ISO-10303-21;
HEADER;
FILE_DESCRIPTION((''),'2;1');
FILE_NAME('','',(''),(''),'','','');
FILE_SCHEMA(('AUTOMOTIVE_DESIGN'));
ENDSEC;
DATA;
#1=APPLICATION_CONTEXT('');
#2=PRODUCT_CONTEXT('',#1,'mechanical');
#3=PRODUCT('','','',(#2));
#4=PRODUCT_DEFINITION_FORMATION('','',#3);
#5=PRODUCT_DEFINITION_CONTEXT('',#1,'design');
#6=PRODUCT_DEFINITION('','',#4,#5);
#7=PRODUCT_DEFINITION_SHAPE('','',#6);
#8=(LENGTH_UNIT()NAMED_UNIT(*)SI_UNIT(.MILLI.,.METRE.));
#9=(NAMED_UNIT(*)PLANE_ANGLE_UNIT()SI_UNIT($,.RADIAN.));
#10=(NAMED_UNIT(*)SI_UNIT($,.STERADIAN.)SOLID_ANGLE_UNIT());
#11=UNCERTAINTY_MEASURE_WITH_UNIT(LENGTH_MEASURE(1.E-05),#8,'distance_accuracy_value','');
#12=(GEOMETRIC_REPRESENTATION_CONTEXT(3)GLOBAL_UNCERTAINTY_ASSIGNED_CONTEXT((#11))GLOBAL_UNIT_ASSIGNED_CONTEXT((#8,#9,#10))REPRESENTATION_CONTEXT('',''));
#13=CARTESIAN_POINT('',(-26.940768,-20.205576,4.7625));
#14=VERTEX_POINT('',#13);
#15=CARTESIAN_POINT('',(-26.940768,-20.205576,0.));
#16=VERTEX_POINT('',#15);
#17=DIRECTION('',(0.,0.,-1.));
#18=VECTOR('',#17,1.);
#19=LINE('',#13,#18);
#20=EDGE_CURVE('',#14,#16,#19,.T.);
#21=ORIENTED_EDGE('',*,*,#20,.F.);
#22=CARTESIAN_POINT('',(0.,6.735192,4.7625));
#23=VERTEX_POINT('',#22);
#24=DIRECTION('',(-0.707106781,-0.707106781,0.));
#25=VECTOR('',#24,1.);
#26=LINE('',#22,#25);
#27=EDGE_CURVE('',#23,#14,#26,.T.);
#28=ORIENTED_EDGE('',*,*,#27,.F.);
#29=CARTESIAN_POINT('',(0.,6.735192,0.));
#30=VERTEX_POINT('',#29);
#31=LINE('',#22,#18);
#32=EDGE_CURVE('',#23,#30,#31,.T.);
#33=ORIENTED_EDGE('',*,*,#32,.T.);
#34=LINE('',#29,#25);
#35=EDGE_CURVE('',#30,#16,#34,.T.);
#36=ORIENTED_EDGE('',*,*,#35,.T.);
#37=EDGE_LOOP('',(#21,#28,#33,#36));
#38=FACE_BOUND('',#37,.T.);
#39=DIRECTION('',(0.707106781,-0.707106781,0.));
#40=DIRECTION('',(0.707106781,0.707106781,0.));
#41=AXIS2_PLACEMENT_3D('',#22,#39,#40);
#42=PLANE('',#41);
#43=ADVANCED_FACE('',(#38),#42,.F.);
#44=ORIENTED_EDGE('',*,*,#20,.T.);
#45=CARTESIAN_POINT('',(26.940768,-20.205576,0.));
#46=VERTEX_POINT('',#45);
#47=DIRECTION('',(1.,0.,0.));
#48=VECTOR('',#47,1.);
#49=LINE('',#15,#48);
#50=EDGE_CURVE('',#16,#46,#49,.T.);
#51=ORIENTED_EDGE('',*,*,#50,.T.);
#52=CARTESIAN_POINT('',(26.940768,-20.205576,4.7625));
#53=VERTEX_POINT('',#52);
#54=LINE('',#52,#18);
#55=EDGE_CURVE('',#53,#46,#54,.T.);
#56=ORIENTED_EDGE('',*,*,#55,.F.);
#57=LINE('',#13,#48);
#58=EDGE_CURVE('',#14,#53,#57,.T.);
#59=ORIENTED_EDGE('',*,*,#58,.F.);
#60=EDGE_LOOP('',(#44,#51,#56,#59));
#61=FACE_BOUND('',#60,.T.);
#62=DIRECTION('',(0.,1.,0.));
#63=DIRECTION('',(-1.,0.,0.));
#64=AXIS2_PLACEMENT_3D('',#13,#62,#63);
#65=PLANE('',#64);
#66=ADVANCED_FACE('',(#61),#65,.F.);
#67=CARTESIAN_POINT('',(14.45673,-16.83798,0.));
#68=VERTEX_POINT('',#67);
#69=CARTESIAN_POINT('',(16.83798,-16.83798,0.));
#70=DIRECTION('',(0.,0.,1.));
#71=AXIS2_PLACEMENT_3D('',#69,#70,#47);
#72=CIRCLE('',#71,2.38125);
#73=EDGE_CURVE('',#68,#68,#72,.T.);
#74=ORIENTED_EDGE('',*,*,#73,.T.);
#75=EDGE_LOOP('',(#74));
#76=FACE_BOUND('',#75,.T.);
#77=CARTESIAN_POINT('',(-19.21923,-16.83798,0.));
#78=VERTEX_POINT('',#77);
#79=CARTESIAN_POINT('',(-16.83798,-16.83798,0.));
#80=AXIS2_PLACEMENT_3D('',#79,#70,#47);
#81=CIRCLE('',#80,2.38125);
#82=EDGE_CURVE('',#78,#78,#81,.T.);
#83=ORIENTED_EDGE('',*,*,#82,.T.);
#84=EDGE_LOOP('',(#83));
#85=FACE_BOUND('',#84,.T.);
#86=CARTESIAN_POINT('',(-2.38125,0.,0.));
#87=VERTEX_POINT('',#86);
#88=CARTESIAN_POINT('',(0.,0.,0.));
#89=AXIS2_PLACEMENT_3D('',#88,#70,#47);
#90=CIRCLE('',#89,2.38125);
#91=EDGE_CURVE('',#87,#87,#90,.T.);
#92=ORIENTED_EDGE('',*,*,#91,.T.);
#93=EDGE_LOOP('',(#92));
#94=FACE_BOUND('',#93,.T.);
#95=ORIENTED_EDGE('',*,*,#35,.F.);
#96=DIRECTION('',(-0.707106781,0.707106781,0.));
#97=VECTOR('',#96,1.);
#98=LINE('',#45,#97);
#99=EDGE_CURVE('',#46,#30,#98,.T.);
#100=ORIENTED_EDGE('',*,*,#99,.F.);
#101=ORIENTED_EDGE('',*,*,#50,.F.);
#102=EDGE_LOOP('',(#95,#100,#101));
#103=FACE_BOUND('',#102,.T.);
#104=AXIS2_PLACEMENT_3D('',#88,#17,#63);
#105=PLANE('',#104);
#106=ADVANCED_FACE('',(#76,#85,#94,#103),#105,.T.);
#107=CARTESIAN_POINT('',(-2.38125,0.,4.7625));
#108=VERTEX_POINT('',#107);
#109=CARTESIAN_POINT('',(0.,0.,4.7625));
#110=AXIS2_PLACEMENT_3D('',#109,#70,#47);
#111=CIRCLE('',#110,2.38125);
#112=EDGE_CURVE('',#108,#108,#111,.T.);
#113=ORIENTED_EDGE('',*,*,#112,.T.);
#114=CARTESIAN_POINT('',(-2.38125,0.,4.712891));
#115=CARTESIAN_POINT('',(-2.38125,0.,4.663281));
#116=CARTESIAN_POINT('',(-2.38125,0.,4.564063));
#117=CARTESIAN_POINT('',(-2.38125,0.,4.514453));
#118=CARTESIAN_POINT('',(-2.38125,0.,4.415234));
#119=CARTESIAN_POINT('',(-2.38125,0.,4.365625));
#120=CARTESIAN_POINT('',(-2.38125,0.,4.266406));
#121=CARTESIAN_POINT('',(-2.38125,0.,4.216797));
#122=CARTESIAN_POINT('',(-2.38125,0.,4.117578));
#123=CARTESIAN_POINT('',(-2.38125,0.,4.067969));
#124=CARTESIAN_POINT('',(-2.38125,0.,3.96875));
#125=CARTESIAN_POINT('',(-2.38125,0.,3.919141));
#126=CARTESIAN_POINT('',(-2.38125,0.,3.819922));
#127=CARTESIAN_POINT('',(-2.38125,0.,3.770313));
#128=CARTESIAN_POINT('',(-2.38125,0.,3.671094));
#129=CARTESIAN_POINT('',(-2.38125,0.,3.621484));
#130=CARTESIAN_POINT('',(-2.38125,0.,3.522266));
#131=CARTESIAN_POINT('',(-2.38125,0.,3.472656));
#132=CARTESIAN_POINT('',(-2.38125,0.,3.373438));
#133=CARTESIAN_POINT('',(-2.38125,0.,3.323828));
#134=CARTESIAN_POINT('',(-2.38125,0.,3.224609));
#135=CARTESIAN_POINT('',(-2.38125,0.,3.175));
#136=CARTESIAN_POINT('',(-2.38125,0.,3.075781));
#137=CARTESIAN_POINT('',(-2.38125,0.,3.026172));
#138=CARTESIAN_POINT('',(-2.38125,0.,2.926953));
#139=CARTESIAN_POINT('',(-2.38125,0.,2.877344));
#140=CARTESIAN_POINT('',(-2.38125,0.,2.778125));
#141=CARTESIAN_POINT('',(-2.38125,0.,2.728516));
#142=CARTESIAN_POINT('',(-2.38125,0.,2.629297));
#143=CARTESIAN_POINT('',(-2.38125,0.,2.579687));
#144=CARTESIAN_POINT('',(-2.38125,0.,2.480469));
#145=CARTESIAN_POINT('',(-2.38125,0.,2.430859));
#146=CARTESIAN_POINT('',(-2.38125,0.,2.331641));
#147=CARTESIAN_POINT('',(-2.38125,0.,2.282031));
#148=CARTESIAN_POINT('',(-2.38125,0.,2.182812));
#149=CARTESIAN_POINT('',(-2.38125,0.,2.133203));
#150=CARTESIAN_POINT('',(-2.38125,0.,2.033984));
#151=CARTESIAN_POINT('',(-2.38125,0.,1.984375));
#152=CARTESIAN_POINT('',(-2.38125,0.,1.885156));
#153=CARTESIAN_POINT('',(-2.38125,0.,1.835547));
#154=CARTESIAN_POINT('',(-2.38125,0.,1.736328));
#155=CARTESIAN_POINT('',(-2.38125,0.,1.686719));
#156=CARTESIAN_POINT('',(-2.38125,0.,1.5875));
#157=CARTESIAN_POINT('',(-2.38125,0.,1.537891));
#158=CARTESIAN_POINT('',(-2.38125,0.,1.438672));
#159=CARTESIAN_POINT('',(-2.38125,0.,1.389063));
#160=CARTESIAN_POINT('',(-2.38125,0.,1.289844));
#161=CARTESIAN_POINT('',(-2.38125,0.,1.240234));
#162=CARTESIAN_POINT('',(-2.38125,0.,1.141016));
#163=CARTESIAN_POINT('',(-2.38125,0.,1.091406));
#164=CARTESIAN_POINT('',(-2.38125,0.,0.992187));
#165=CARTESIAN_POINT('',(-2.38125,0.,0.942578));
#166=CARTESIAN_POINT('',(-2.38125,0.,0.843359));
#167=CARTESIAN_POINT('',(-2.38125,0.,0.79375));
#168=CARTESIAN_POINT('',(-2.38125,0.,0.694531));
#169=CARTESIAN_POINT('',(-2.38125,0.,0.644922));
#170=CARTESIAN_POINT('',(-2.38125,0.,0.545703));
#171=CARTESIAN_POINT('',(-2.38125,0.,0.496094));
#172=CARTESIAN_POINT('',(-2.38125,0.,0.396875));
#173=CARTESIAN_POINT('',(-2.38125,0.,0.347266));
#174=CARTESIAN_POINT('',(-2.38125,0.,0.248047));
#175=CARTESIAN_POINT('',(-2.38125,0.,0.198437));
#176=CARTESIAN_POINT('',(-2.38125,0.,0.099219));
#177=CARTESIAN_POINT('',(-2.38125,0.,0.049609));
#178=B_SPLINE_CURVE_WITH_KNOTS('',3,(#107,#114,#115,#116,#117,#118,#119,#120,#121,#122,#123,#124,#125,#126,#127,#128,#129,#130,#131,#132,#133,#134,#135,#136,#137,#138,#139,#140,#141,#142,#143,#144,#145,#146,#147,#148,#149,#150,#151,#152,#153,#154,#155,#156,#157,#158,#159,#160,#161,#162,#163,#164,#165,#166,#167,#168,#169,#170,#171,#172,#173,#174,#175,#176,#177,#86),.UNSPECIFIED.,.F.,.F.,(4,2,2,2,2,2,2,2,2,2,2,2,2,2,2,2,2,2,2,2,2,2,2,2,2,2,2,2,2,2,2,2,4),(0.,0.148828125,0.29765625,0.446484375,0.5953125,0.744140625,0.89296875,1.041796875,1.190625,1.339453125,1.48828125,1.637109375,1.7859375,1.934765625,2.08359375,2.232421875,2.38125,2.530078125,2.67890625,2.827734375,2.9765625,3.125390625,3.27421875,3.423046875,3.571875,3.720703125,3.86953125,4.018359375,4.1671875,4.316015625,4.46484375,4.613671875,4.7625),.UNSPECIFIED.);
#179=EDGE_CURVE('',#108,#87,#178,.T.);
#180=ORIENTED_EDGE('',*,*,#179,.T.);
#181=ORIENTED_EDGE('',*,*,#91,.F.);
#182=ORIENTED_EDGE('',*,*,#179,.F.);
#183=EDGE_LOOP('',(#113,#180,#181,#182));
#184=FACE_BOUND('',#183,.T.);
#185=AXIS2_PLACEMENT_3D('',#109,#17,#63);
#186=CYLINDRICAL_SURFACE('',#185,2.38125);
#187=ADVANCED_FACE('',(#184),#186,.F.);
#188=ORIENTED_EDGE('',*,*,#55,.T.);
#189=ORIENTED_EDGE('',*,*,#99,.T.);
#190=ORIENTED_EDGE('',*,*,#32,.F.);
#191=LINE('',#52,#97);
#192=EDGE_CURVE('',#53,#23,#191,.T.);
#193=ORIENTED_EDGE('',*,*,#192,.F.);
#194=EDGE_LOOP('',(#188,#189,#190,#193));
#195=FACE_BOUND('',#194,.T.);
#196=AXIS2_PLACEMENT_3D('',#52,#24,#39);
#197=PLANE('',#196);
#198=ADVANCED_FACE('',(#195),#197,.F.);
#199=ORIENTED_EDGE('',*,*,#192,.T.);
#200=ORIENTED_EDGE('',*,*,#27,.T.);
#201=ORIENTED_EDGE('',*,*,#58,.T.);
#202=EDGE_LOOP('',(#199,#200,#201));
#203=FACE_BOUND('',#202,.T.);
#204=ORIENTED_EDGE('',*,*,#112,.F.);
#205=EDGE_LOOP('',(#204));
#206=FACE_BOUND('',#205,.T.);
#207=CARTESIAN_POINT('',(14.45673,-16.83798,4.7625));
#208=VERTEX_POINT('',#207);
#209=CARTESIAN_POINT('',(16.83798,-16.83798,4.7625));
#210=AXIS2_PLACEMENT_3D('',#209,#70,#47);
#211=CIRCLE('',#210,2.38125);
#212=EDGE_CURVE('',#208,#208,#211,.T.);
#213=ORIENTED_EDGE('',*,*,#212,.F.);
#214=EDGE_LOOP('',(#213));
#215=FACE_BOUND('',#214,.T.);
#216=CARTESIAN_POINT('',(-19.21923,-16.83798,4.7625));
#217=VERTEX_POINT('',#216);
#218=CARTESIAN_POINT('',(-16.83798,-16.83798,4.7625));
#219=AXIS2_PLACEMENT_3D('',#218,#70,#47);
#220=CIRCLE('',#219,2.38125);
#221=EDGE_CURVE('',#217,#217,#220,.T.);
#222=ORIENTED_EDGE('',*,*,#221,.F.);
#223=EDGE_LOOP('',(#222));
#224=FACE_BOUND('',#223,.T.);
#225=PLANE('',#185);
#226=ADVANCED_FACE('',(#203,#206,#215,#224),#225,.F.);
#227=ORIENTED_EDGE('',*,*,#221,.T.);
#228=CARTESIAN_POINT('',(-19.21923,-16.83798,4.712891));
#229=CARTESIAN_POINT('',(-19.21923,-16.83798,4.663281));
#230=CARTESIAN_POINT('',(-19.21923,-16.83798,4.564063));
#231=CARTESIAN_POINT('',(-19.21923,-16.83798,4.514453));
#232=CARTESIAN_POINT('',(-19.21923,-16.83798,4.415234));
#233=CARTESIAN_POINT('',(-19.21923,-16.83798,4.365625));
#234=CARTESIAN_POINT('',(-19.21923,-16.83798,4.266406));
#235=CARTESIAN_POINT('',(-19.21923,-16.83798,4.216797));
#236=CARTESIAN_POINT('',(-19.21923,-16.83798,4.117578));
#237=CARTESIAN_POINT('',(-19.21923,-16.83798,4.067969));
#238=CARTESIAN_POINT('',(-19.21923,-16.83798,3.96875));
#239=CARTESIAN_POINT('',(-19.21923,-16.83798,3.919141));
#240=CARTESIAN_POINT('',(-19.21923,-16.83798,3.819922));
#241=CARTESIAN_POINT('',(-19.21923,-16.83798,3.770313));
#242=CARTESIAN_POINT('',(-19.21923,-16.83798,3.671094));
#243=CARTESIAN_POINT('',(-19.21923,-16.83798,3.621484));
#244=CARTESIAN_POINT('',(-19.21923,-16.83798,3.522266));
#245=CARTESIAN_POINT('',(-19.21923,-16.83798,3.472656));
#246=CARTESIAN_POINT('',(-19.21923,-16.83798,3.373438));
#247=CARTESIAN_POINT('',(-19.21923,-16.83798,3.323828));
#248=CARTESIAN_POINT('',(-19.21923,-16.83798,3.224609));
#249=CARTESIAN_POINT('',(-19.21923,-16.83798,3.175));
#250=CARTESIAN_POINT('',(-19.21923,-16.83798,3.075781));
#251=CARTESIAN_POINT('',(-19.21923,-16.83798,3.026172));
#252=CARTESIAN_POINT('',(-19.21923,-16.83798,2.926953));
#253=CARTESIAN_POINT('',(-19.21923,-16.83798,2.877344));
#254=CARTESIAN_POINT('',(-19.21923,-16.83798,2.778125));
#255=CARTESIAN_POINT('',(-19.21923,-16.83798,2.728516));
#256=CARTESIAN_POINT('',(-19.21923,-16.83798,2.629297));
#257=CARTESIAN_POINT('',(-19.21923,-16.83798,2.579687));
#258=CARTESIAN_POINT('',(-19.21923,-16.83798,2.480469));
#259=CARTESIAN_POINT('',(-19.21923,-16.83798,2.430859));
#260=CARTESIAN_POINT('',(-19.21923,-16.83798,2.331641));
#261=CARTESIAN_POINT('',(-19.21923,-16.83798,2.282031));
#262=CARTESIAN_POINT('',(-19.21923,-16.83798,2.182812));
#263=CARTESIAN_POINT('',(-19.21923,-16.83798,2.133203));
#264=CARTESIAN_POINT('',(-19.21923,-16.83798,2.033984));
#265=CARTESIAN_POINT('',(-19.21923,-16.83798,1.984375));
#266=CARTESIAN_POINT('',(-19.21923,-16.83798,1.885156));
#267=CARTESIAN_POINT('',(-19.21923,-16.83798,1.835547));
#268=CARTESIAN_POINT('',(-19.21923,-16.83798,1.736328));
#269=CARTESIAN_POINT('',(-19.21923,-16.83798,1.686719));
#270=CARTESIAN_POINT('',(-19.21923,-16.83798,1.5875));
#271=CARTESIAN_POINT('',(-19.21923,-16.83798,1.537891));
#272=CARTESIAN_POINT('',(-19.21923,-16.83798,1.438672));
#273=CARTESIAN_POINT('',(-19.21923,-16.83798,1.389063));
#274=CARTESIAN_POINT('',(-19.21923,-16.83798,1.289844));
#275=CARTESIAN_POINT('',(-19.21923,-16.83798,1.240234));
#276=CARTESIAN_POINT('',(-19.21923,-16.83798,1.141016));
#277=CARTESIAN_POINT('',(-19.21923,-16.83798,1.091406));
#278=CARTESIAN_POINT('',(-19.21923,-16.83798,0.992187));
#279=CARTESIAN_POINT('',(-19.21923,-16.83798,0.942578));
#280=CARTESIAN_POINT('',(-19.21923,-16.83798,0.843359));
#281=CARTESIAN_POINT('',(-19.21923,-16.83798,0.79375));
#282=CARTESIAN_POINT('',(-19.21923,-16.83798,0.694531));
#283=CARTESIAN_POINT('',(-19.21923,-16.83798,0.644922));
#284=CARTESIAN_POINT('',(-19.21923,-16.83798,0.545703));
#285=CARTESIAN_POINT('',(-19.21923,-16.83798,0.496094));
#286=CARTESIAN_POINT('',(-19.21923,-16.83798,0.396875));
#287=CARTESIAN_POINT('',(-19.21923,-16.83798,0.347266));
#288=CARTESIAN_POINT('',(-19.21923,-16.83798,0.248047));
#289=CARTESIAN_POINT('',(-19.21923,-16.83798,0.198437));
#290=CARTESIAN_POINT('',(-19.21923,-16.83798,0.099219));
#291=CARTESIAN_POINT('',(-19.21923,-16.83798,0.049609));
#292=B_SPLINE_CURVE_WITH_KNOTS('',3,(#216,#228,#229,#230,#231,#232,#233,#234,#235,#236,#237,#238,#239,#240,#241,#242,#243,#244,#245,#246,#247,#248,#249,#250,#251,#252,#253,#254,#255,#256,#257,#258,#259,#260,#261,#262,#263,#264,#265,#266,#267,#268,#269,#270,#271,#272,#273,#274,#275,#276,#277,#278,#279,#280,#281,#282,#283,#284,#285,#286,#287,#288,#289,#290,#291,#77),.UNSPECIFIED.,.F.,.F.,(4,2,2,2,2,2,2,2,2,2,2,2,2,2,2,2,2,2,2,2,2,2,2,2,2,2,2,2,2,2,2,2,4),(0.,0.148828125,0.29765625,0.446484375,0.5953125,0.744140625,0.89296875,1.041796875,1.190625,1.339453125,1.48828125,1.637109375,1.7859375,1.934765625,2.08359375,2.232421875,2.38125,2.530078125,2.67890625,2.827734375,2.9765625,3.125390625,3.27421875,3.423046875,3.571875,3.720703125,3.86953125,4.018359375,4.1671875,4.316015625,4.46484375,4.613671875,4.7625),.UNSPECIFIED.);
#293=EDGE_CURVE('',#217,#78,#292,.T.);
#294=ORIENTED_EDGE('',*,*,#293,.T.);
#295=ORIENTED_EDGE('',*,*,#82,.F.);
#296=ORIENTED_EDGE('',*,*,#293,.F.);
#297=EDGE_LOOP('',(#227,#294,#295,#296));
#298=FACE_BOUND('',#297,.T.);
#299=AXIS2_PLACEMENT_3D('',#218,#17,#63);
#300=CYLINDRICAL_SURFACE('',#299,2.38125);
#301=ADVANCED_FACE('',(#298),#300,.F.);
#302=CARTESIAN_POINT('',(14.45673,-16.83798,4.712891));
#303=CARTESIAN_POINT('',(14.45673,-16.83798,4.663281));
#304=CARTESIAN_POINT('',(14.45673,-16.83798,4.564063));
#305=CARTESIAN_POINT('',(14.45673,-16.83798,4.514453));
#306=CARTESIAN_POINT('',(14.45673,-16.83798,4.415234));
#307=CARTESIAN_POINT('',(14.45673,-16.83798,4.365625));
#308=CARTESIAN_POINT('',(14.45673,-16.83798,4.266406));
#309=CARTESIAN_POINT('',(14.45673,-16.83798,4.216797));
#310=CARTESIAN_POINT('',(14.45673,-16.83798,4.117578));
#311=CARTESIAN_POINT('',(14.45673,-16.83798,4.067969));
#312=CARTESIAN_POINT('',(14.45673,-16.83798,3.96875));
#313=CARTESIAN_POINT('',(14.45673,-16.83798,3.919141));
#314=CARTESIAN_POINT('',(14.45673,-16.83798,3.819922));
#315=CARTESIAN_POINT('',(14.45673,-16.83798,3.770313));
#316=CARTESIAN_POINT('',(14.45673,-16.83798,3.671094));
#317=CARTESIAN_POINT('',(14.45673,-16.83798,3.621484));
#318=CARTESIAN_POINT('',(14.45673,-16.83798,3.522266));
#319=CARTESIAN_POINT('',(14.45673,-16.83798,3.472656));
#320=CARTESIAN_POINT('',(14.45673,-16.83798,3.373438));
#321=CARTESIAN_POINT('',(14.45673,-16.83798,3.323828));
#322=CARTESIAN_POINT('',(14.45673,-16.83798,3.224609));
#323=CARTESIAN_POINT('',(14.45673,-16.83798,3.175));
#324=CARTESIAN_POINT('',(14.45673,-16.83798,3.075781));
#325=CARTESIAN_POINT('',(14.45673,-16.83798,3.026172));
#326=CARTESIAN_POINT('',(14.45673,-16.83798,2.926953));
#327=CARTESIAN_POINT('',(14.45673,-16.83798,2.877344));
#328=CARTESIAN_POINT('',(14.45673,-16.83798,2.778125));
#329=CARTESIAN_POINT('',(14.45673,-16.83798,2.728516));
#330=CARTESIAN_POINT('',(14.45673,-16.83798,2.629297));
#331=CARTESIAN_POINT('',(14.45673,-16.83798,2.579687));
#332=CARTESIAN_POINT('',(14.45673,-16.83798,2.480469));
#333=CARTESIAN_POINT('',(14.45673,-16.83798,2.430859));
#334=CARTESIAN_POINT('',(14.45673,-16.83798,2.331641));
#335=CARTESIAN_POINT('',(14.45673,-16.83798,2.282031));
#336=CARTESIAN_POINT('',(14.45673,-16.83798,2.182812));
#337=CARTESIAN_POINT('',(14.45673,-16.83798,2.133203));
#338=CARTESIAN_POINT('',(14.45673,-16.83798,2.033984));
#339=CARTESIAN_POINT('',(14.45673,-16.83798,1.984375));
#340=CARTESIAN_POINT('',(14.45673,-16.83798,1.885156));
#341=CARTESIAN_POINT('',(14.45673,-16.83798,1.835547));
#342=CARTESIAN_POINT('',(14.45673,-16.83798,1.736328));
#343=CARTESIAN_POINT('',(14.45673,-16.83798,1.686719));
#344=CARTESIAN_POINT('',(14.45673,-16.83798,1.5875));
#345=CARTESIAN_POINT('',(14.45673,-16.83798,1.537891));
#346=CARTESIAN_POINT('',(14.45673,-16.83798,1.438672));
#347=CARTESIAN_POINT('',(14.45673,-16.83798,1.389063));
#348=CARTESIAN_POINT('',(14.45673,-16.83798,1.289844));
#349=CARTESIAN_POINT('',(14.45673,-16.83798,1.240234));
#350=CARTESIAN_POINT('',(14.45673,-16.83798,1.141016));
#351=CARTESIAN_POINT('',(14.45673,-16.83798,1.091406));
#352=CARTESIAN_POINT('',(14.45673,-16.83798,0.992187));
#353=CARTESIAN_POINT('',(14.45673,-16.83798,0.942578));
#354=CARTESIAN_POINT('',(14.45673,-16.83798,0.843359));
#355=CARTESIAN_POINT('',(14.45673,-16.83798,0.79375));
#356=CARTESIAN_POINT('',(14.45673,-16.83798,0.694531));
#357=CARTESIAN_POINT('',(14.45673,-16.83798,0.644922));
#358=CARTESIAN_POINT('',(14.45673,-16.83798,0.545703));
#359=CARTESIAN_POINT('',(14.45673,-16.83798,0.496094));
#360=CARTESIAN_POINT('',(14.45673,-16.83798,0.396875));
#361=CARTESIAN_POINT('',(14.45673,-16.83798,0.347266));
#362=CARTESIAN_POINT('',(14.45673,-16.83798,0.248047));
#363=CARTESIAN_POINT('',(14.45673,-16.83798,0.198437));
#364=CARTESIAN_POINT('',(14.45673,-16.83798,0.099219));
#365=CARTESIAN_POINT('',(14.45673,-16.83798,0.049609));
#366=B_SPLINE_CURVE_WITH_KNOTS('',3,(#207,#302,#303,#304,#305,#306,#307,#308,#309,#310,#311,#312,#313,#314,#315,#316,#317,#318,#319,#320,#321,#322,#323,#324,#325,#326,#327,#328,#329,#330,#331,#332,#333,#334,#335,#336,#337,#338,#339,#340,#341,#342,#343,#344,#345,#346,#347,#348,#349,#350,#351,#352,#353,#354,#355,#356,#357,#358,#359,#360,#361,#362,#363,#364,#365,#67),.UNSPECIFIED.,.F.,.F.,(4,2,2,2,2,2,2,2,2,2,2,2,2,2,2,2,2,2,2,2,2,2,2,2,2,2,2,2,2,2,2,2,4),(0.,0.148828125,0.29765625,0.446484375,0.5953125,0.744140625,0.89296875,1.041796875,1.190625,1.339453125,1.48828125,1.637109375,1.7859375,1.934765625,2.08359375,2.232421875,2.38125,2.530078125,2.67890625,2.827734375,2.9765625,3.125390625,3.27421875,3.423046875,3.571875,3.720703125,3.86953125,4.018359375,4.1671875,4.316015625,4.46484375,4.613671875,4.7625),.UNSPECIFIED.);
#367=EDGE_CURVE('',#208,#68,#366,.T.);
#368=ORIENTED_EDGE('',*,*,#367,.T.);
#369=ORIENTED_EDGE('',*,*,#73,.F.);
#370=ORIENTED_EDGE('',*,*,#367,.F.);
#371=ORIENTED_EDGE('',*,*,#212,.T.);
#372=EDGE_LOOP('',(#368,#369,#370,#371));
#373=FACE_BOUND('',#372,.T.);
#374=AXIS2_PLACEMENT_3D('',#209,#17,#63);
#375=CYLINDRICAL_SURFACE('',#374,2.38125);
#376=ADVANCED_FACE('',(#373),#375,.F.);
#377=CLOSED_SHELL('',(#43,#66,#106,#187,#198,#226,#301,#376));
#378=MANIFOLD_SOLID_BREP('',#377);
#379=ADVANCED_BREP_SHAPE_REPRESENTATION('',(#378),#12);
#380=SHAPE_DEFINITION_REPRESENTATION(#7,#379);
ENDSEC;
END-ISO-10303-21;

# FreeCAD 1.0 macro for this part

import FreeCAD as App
import Part
import Sketcher
Q = App.Units.Quantity

doc = App.newDocument("Part")
body = doc.addObject("PartDesign::Body", "Body")

# Sketch on XY plane
sketch1 = doc.addObject("Sketcher::SketchObject", "Sketch")
body.addObject(sketch1)
sketch1.AttachmentSupport = (doc.XY_Plane, [""])
sketch1.MapMode = "FlatFace"
sketch1.addGeometry([
    Part.LineSegment(App.Vector(-26.9, -20.2, 0), App.Vector(26.9, -20.2, 0)),  # 0
    Part.LineSegment(App.Vector(26.9, -20.2, 0), App.Vector(0, 6.7, 0)),  # 1
    Part.LineSegment(App.Vector(0, 6.7, 0), App.Vector(-26.9, -20.2, 0)),  # 2
    Part.Circle(App.Vector(-16.8, -16.8, 0), App.Vector(0, 0, 1), 2.4),  # 3
    Part.Circle(App.Vector(16.8, -16.8, 0), App.Vector(0, 0, 1), 2.4),  # 4
    Part.Circle(App.Vector(0, 0, 0), App.Vector(0, 0, 1), 2.4),  # 5
], False)
sketch1.addConstraint([
    Sketcher.Constraint("Coincident", 0, 2, 1, 1),
    Sketcher.Constraint("Coincident", 1, 2, 2, 1),
    Sketcher.Constraint("Coincident", 2, 2, 0, 1),
    Sketcher.Constraint("Horizontal", 0),
    Sketcher.Constraint("Coincident", 5, 3, -1, 1),
    Sketcher.Constraint("Equal", 3, 4),
    Sketcher.Constraint("Equal", 4, 5),
    Sketcher.Constraint("Symmetric", 3, 3, 4, 3, -2),
    Sketcher.Constraint("PointOnObject", 1, 2, -2),
    Sketcher.Constraint("Perpendicular", 1, 2),
    Sketcher.Constraint("Equal", 1, 2),
    Sketcher.Constraint("Diameter", 3, Q("0.1875 in")),
    Sketcher.Constraint("Distance", 1, Q("1.5 in")),
    Sketcher.Constraint("DistanceX", 3, 3, -1, 1, Q("16.83798 mm")),
    Sketcher.Constraint("DistanceY", 3, 3, -1, 1, Q("16.83798 mm")),
    Sketcher.Constraint("DistanceY", 0, 2, -1, 1, Q("20.205576 mm")),
])
pad1 = doc.addObject("PartDesign::Pad", "Pad")
body.addObject(pad1)
pad1.Profile = sketch1
pad1.Length = Q("0.1875 in")

doc.recompute()
